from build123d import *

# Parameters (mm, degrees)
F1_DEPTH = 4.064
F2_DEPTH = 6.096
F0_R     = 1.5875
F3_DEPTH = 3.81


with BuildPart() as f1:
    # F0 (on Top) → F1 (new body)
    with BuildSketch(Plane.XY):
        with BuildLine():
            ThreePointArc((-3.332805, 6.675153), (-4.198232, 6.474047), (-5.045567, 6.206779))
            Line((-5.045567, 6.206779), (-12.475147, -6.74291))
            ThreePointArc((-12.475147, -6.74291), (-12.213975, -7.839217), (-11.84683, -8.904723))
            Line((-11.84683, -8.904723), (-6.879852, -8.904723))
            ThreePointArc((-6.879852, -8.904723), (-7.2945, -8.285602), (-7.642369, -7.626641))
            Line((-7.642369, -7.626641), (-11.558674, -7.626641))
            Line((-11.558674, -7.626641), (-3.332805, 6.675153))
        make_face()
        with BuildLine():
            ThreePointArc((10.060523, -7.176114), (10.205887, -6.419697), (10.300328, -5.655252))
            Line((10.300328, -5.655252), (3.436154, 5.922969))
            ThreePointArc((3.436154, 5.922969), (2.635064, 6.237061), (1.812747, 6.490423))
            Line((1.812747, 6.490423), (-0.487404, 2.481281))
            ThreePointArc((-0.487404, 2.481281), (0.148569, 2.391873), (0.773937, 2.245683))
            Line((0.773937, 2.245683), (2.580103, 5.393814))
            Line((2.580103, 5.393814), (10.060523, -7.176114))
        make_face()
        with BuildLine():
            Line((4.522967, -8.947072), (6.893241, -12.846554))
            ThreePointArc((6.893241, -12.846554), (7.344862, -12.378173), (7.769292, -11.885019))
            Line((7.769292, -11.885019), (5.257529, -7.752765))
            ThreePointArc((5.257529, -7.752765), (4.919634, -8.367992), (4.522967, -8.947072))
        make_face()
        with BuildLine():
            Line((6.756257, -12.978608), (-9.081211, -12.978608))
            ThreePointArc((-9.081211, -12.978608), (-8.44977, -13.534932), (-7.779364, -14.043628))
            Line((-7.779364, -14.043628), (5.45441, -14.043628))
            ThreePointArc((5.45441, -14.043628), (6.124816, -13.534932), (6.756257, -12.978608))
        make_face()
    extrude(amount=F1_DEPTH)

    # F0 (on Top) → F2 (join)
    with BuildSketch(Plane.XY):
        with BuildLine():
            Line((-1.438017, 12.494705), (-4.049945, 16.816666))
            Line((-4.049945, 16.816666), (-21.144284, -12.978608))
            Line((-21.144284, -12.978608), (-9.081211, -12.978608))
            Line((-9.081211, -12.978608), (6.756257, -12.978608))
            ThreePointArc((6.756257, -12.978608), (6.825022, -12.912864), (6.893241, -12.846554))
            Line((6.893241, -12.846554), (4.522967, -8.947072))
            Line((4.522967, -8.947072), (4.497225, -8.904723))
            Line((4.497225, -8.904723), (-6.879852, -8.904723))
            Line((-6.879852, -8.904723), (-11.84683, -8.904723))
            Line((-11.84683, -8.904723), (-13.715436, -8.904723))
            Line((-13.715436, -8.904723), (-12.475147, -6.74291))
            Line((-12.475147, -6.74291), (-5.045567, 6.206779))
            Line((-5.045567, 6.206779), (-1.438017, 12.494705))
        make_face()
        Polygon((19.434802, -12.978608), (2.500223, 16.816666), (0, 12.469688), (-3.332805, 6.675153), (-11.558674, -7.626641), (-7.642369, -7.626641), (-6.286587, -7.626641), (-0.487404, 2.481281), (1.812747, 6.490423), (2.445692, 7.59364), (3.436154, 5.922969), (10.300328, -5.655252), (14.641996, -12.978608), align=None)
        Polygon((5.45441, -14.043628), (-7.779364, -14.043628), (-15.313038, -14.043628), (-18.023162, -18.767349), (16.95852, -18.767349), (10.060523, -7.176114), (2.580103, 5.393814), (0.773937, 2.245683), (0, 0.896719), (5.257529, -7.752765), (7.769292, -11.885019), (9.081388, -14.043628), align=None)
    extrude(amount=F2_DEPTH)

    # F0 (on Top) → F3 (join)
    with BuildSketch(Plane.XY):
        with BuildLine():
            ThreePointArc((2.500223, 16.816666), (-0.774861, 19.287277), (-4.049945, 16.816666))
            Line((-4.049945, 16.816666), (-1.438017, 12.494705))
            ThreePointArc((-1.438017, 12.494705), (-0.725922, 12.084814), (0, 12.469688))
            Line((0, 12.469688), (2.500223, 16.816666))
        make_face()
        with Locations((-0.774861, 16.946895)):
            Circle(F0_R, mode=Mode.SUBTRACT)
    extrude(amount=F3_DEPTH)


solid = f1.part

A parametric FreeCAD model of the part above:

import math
import FreeCAD as App
import Part
import Sketcher
from FreeCAD import Vector
Q = App.Units.Quantity


def add_polygon(sketch, points):
    """Adds a closed chain of lines whose ends are joined by coincident constraints."""
    first, n = sketch.GeometryCount, len(points)
    for a, b in zip(points, points[1:] + points[:1]):
        sketch.addGeometry(Part.LineSegment(App.Vector(*a, 0), App.Vector(*b, 0)), False)
    for i in range(n):
        sketch.addConstraint(Sketcher.Constraint("Coincident", first + i, 2, first + (i + 1) % n, 1))

doc = App.newDocument("Part")
params = doc.addObject("Spreadsheet::Sheet", "Params")
for row, (alias, value) in enumerate([
    ("pad1_length", "0.16 in"),
    ("pad2_length", "0.24 in"),
    ("sketch3_diameter", "0.125 in"),
    ("pad3_length", "0.15 in"),
], start=1):
    params.set(f"A{row}", alias)
    params.set(f"B{row}", "=" + value)
    params.setAlias(f"B{row}", alias)

body = doc.addObject("PartDesign::Body", "Body")
body.AllowCompound = True

# Sketch on XY plane
sketch1 = body.newObject("Sketcher::SketchObject", "Sketch")
sketch1.AttachmentSupport = (doc.getObject("XY_Plane"), [""])
sketch1.MapMode = "FlatFace"
sketch1.addGeometry([
    Part.ArcOfCircle(Part.Circle(Vector(-1.2, -4.6, 0), Vector(0, 0, 1), 11.5), math.radians(100.87), math.radians(109.72)),  # 0
    Part.LineSegment(Vector(-5, 6.2, 0), Vector(-12.5, -6.7, 0)),  # 1
    Part.ArcOfCircle(Part.Circle(Vector(-1.2, -4.6, 0), Vector(0, 0, 1), 11.5), math.radians(-169.41), math.radians(-158.18)),  # 2
    Part.LineSegment(Vector(-11.8, -8.9, 0), Vector(-6.9, -8.9, 0)),  # 3
    Part.ArcOfCircle(Part.Circle(Vector(-1.2, -4.6, 0), Vector(0, 0, 1), 7.1), math.radians(-155.16), math.radians(-143.2)),  # 4
    Part.LineSegment(Vector(-7.6, -7.6, 0), Vector(-11.6, -7.6, 0)),  # 5
    Part.LineSegment(Vector(-11.6, -7.6, 0), Vector(-3.3, 6.7, 0)),  # 6
    Part.ArcOfCircle(Part.Circle(Vector(-1.2, -4.6, 0), Vector(0, 0, 1), 11.5), math.radians(-12.8), math.radians(-5.13)),  # 7
    Part.LineSegment(Vector(10.3, -5.7, 0), Vector(3.4, 5.9, 0)),  # 8
    Part.ArcOfCircle(Part.Circle(Vector(-1.2, -4.6, 0), Vector(0, 0, 1), 11.5), math.radians(66.45), math.radians(75.02)),  # 9
    Part.LineSegment(Vector(1.8, 6.5, 0), Vector(-0.5, 2.5, 0)),  # 10
    Part.ArcOfCircle(Part.Circle(Vector(-1.2, -4.6, 0), Vector(0, 0, 1), 7.1), math.radians(74.26), math.radians(84.58)),  # 11
    Part.LineSegment(Vector(0.8, 2.2, 0), Vector(2.6, 5.4, 0)),  # 12
    Part.LineSegment(Vector(2.6, 5.4, 0), Vector(10.1, -7.2, 0)),  # 13
    Part.LineSegment(Vector(4.5, -8.9, 0), Vector(6.9, -12.8, 0)),  # 14
    Part.ArcOfCircle(Part.Circle(Vector(-1.2, -4.6, 0), Vector(0, 0, 1), 11.5), math.radians(-45.58), math.radians(-39.1)),  # 15
    Part.LineSegment(Vector(7.8, -11.9, 0), Vector(5.3, -7.8, 0)),  # 16
    Part.ArcOfCircle(Part.Circle(Vector(-1.2, -4.6, 0), Vector(0, 0, 1), 7.1), math.radians(-37.23), math.radians(-25.96)),  # 17
    Part.LineSegment(Vector(6.8, -13, 0), Vector(-9.1, -13, 0)),  # 18
    Part.ArcOfCircle(Part.Circle(Vector(-1.2, -4.6, 0), Vector(0, 0, 1), 11.5), math.radians(-133.48), math.radians(-125.1)),  # 19
    Part.LineSegment(Vector(-7.8, -14, 0), Vector(5.5, -14, 0)),  # 20
    Part.ArcOfCircle(Part.Circle(Vector(-1.2, -4.6, 0), Vector(0, 0, 1), 11.5), math.radians(-54.9), math.radians(-46.52)),  # 21
], False)
sketch1.addConstraint([
    Sketcher.Constraint("Coincident", 0, 2, 1, 1),
    Sketcher.Constraint("Coincident", 1, 2, 2, 1),
    Sketcher.Constraint("Coincident", 2, 2, 3, 1),
    Sketcher.Constraint("Coincident", 3, 2, 4, 2),
    Sketcher.Constraint("Coincident", 4, 1, 5, 1),
    Sketcher.Constraint("Coincident", 5, 2, 6, 1),
    Sketcher.Constraint("Coincident", 6, 2, 0, 1),
    Sketcher.Constraint("Coincident", 7, 2, 8, 1),
    Sketcher.Constraint("Coincident", 8, 2, 9, 1),
    Sketcher.Constraint("Coincident", 9, 2, 10, 1),
    Sketcher.Constraint("Coincident", 10, 2, 11, 2),
    Sketcher.Constraint("Coincident", 11, 1, 12, 1),
    Sketcher.Constraint("Coincident", 12, 2, 13, 1),
    Sketcher.Constraint("Coincident", 13, 2, 7, 1),
    Sketcher.Constraint("Coincident", 14, 2, 15, 1),
    Sketcher.Constraint("Coincident", 15, 2, 16, 1),
    Sketcher.Constraint("Coincident", 16, 2, 17, 2),
    Sketcher.Constraint("Coincident", 17, 1, 14, 1),
    Sketcher.Constraint("Coincident", 18, 2, 19, 1),
    Sketcher.Constraint("Coincident", 19, 2, 20, 1),
    Sketcher.Constraint("Coincident", 20, 2, 21, 1),
    Sketcher.Constraint("Coincident", 21, 2, 18, 1),
    Sketcher.Constraint("Horizontal", 3),
    Sketcher.Constraint("Horizontal", 5),
    Sketcher.Constraint("Horizontal", 18),
    Sketcher.Constraint("Horizontal", 20),
    Sketcher.Constraint("Equal", 19, 21),
    Sketcher.Constraint("Parallel", 1, 10),
    Sketcher.Constraint("Parallel", 10, 12),
    Sketcher.Constraint("Parallel", 14, 16),
    Sketcher.Constraint("Horizontal", 4, 3, 17, 3),
    Sketcher.Constraint("Horizontal", 19, 3, 21, 3),
    Sketcher.Constraint("Vertical", 4, 3, 11, 3),
    Sketcher.Constraint("Radius", 0, Q("11.508911 mm")),
    Sketcher.Constraint("Radius", 2, Q("11.508857 mm")),
    Sketcher.Constraint("Radius", 4, Q("7.140447 mm")),
    Sketcher.Constraint("Radius", 7, Q("11.508714 mm")),
    Sketcher.Constraint("Radius", 9, Q("11.508864 mm")),
    Sketcher.Constraint("Radius", 11, Q("7.140385 mm")),
    Sketcher.Constraint("Radius", 15, Q("11.508908 mm")),
    Sketcher.Constraint("Radius", 17, Q("7.140443 mm")),
    Sketcher.Constraint("Radius", 19, Q("11.508926 mm")),
    Sketcher.Constraint("DistanceY", 1, 2, 21, 3, Q("0.0833001 in")),
    Sketcher.Constraint("DistanceY", 18, 2, 1, 2, Q("0.2454999 in")),
    Sketcher.Constraint("DistanceX", 3, 1, 3, 2, Q("4.966978 mm")),
    Sketcher.Constraint("DistanceY", 11, 3, 0, 2, Q("10.8339 mm")),
    Sketcher.Constraint("DistanceX", 1, 2, 21, 3, Q("11.312599 mm")),
    Sketcher.Constraint("DistanceX", 6, 2, 19, 3, Q("2.170399 mm")),
    Sketcher.Constraint("DistanceX", 6, 2, 10, 2, Q("2.845401 mm")),
    Sketcher.Constraint("DistanceY", 10, 2, 0, 2, Q("3.725498 mm")),
    Sketcher.Constraint("DistanceY", 11, 1, 10, 2, Q("0.235598 mm")),
    Sketcher.Constraint("DistanceX", 7, 3, 13, 2, Q("11.222898 mm")),
    Sketcher.Constraint("DistanceY", 14, 2, 7, 2, Q("7.191302 mm")),
    Sketcher.Constraint("DistanceX", 16, 2, 7, 2, Q("5.042799 mm")),
    Sketcher.Constraint("Distance", 8, Q("13.460018 mm")),
    Sketcher.Constraint("Distance", 10, Q("4.622111 mm")),
    Sketcher.Constraint("Distance", 14, Q("4.56335 mm")),
    Sketcher.Constraint("Distance", 16, Q("4.83575 mm")),
    Sketcher.Constraint("DistanceX", 5, 2, 5, 1, Q("3.916305 mm")),
    Sketcher.Constraint("DistanceX", 18, 2, 18, 1, Q("15.837468 mm")),
    Sketcher.Constraint("DistanceX", 20, 1, 20, 2, Q("13.233774 mm")),
    Sketcher.Constraint("DistanceY", 2, 3, -1, 1, Q("4.627159 mm")),
    Sketcher.Constraint("DistanceX", 9, 3, -1, 1, Q("1.162491 mm")),
    Sketcher.Constraint("DistanceY", 11, 3, -1, 1, Q("4.627121 mm")),
    Sketcher.Constraint("DistanceX", 21, 3, -1, 1, Q("1.162548 mm")),
    Sketcher.Constraint("DistanceY", 1, 2, -1, 1, Q("6.74291 mm")),
    Sketcher.Constraint("DistanceX", 2, 2, -1, 1, Q("11.84683 mm")),
    Sketcher.Constraint("DistanceX", 4, 1, -1, 1, Q("7.642369 mm")),
    Sketcher.Constraint("DistanceX", -1, 1, 7, 2, Q("10.300328 mm")),
    Sketcher.Constraint("DistanceY", -1, 1, 8, 2, Q("5.922969 mm")),
    Sketcher.Constraint("DistanceX", -1, 1, 14, 2, Q("6.893241 mm")),
    Sketcher.Constraint("DistanceY", 15, 2, -1, 1, Q("11.885019 mm")),
    Sketcher.Constraint("DistanceY", 17, 1, -1, 1, Q("8.947072 mm")),
    Sketcher.Constraint("DistanceY", 0, 3, 11, 3, Q("0.000142 mm")),
    Sketcher.Constraint("DistanceY", 7, 2, 7, 3, Q("1.028068 mm")),
    Sketcher.Constraint("DistanceX", 12, 2, 8, 2, Q("0.856051 mm")),
])
pad1 = body.newObject("PartDesign::Pad", "Pad")
pad1.Profile = sketch1
pad1.setExpression("Length", "Params.pad1_length")

# Sketch on XY plane
sketch2 = body.newObject("Sketcher::SketchObject", "Sketch001")
sketch2.AttachmentSupport = (doc.getObject("XY_Plane"), [""])
sketch2.MapMode = "FlatFace"
sketch2.addGeometry(Part.LineSegment(Vector(-1.438, 12.495, 0), Vector(-4.05, 16.817, 0)), False)  # 0
sketch2.addGeometry(Part.LineSegment(Vector(-4.05, 16.817, 0), Vector(-21.144, -12.979, 0)), False)  # 1
sketch2.addGeometry(Part.LineSegment(Vector(-21.144, -12.979, 0), Vector(6.756, -12.979, 0)), False)  # 2
sketch2.addGeometry(Part.ArcOfCircle(Part.Circle(Vector(-1.162, -4.627, 0), Vector(0, 0, 1), 11.509), math.radians(-46.52), math.radians(-45.58)), False)  # 3
sketch2.addGeometry(Part.LineSegment(Vector(6.893, -12.847, 0), Vector(4.523, -8.947, 0)), False)  # 4
sketch2.addGeometry(Part.LineSegment(Vector(4.523, -8.947, 0), Vector(4.497, -8.905, 0)), False)  # 5
sketch2.addGeometry(Part.LineSegment(Vector(4.497, -8.905, 0), Vector(-13.715, -8.905, 0)), False)  # 6
sketch2.addGeometry(Part.LineSegment(Vector(-13.715, -8.905, 0), Vector(-12.475, -6.743, 0)), False)  # 7
sketch2.addGeometry(Part.LineSegment(Vector(-12.475, -6.743, 0), Vector(-5.046, 6.207, 0)), False)  # 8
sketch2.addGeometry(Part.LineSegment(Vector(-5.046, 6.207, 0), Vector(-1.438, 12.495, 0)), False)  # 9
add_polygon(sketch2, [(19.435, -12.979), (2.5, 16.817), (0, 12.47), (-3.333, 6.675), (-11.559, -7.627), (-6.287, -7.627), (-0.487, 2.481), (1.813, 6.49), (2.446, 7.594), (3.436, 5.923), (10.3, -5.655), (14.642, -12.979)])  # lines 10-21
add_polygon(sketch2, [(-15.313, -14.044), (-18.023, -18.767), (16.959, -18.767), (10.061, -7.176), (2.58, 5.394), (0.774, 2.246), (0, 0.897), (5.258, -7.753), (7.769, -11.885), (9.081, -14.044)])  # lines 22-31
sketch2.addConstraint([
    Sketcher.Constraint("Coincident", 0, 2, 1, 1),
    Sketcher.Constraint("Coincident", 1, 2, 2, 1),
    Sketcher.Constraint("Coincident", 2, 2, 3, 1),
    Sketcher.Constraint("Coincident", 3, 2, 4, 1),
    Sketcher.Constraint("Coincident", 4, 2, 5, 1),
    Sketcher.Constraint("Coincident", 5, 2, 6, 1),
    Sketcher.Constraint("Coincident", 6, 2, 7, 1),
    Sketcher.Constraint("Coincident", 7, 2, 8, 1),
    Sketcher.Constraint("Coincident", 8, 2, 9, 1),
    Sketcher.Constraint("Coincident", 9, 2, 0, 1),
    Sketcher.Constraint("Horizontal", 2),
    Sketcher.Constraint("Horizontal", 6),
    Sketcher.Constraint("Horizontal", 14),
    Sketcher.Constraint("Horizontal", 21),
    Sketcher.Constraint("Horizontal", 23),
    Sketcher.Constraint("Horizontal", 31),
    Sketcher.Constraint("PointOnObject", 11, 2, -2),
    Sketcher.Constraint("PointOnObject", 27, 2, -2),
    Sketcher.Constraint("Parallel", 1, 7),
    Sketcher.Constraint("Parallel", 7, 8),
    Sketcher.Constraint("Parallel", 8, 9),
    Sketcher.Constraint("Parallel", 11, 12),
    Sketcher.Constraint("Parallel", 12, 13),
    Sketcher.Constraint("Parallel", 9, 15),
    Sketcher.Constraint("Parallel", 15, 16),
    Sketcher.Constraint("Parallel", 16, 17),
    Sketcher.Constraint("Parallel", 18, 19),
    Sketcher.Constraint("Parallel", 19, 20),
    Sketcher.Constraint("Parallel", 17, 22),
    Sketcher.Constraint("Parallel", 24, 25),
    Sketcher.Constraint("Parallel", 22, 26),
    Sketcher.Constraint("Parallel", 26, 27),
    Sketcher.Constraint("Parallel", 4, 28),
    Sketcher.Constraint("Parallel", 28, 29),
    Sketcher.Constraint("Parallel", 29, 30),
    Sketcher.Constraint("Horizontal", 0, 2, 10, 2),
    Sketcher.Constraint("Horizontal", 2, 2, 20, 2),
    Sketcher.Constraint("Radius", 3, Q("11.508812 mm")),
    Sketcher.Constraint("DistanceY", 1, 2, 7, 2, Q("0.2454999 in")),
    Sketcher.Constraint("DistanceX", 12, 2, 17, 2, Q("0.2274999 in")),
    Sketcher.Constraint("Distance", 30, Q("2.526101 mm")),
    Sketcher.Constraint("DistanceX", 2, 1, 2, 2, Q("27.900541 mm")),
    Sketcher.Constraint("DistanceX", 6, 2, 6, 1, Q("18.212661 mm")),
    Sketcher.Constraint("DistanceX", 0, 2, 2, 2, Q("10.806202 mm")),
    Sketcher.Constraint("DistanceY", 4, 2, 3, 3, Q("4.3199 mm")),
    Sketcher.Constraint("DistanceX", 12, 2, 15, 2, Q("2.845401 mm")),
    Sketcher.Constraint("DistanceY", 15, 2, 8, 2, Q("3.725498 mm")),
    Sketcher.Constraint("DistanceY", 3, 2, 19, 2, Q("7.191302 mm")),
    Sketcher.Constraint("DistanceX", 3, 3, 19, 2, Q("11.4628 mm")),
    Sketcher.Constraint("Distance", 1, Q("34.350761 mm")),
    Sketcher.Constraint("Distance", 4, Q("4.56335 mm")),
    Sketcher.Constraint("Distance", 5, Q("0.049559 mm")),
    Sketcher.Constraint("Distance", 7, Q("2.492339 mm")),
    Sketcher.Constraint("Distance", 10, Q("34.271538 mm")),
    Sketcher.Constraint("Distance", 11, Q("5.014712 mm")),
    Sketcher.Constraint("Distance", 15, Q("11.653352 mm")),
    Sketcher.Constraint("Distance", 16, Q("4.622111 mm")),
    Sketcher.Constraint("Distance", 19, Q("13.460018 mm")),
    Sketcher.Constraint("Distance", 24, Q("13.48848 mm")),
    Sketcher.Constraint("Distance", 27, Q("1.555211 mm")),
    Sketcher.Constraint("Distance", 29, Q("4.83575 mm")),
    Sketcher.Constraint("DistanceX", 14, 1, 14, 2, Q("5.272087 mm")),
    Sketcher.Constraint("DistanceX", 21, 1, 21, 2, Q("4.792806 mm")),
    Sketcher.Constraint("DistanceX", 23, 1, 23, 2, Q("34.981682 mm")),
    Sketcher.Constraint("DistanceX", 31, 2, 31, 1, Q("24.394426 mm")),
    Sketcher.Constraint("DistanceX", 3, 3, -1, 1, Q("1.162472 mm")),
    Sketcher.Constraint("DistanceY", 3, 3, -1, 1, Q("4.627172 mm")),
    Sketcher.Constraint("DistanceX", -1, 1, 3, 2, Q("6.893241 mm")),
    Sketcher.Constraint("DistanceY", 7, 2, -1, 1, Q("6.74291 mm")),
    Sketcher.Constraint("DistanceY", -1, 1, 8, 2, Q("6.206779 mm")),
    Sketcher.Constraint("DistanceX", 22, 2, -1, 1, Q("18.023162 mm")),
    Sketcher.Constraint("DistanceY", 22, 2, -1, 1, Q("18.767349 mm")),
    Sketcher.Constraint("DistanceY", -1, 1, 27, 2, Q("0.896719 mm")),
    Sketcher.Constraint("DistanceY", 9, 2, 0, 2, Q("4.321961 mm")),
    Sketcher.Constraint("DistanceY", 4, 2, 24, 2, Q("1.770958 mm")),
])
pad2 = body.newObject("PartDesign::Pad", "Pad001")
pad2.Profile = sketch2
pad2.setExpression("Length", "Params.pad2_length")

# Sketch on XY plane
sketch3 = body.newObject("Sketcher::SketchObject", "Sketch002")
sketch3.AttachmentSupport = (doc.getObject("XY_Plane"), [""])
sketch3.MapMode = "FlatFace"
sketch3.addGeometry([
    Part.ArcOfCircle(Part.Circle(Vector(-0.8, 15.9, 0), Vector(0, 0, 1), 3.4), math.radians(16), math.radians(164)),  # 0
    Part.LineSegment(Vector(-4, 16.8, 0), Vector(-1.4, 12.5, 0)),  # 1
    Part.ArcOfCircle(Part.Circle(Vector(-0.7, 12.9, 0), Vector(0, 0, 1), 0.8), math.radians(-149), math.radians(-33)),  # 2
    Part.LineSegment(Vector(0, 12.5, 0), Vector(2.5, 16.8, 0)),  # 3
    Part.Circle(Vector(-0.8, 16.9, 0), Vector(0, 0, 1), 1.6),  # 4
], False)
sketch3.addConstraint([
    Sketcher.Constraint("Coincident", 0, 2, 1, 1),
    Sketcher.Constraint("Tangent", 1, 2, 2, 1),
    Sketcher.Constraint("Coincident", 2, 2, 3, 1),
    Sketcher.Constraint("Coincident", 3, 2, 0, 1),
    Sketcher.Constraint("PointOnObject", 2, 2, -2),
    Sketcher.Constraint("Horizontal", 0, 2, 3, 2),
    Sketcher.Constraint("Vertical", 0, 3, 4, 3),
    Sketcher.Constraint("Diameter", 4, Q("0.125 in")),
    Sketcher.Constraint("Radius", 0, Q("3.406059 mm")),
    Sketcher.Constraint("Radius", 2, Q("0.849293 mm")),
    Sketcher.Constraint("Distance", 3, Q("5.014712 mm")),
    Sketcher.Constraint("DistanceX", 0, 3, -1, 1, Q("0.774861 mm")),
    Sketcher.Constraint("DistanceX", 2, 3, -1, 1, Q("0.711149 mm")),
    Sketcher.Constraint("DistanceY", -1, 1, 2, 3, Q("12.933978 mm")),
    Sketcher.Constraint("DistanceY", 2, 3, 0, 3, Q("2.94724 mm")),
    Sketcher.Constraint("DistanceY", 0, 2, 4, 3, Q("0.130229 mm")),
])
sketch3.setExpression("Constraints[7]", "Params.sketch3_diameter")
pad3 = body.newObject("PartDesign::Pad", "Pad002")
pad3.Profile = sketch3
pad3.setExpression("Length", "Params.pad3_length")

doc.recompute()
